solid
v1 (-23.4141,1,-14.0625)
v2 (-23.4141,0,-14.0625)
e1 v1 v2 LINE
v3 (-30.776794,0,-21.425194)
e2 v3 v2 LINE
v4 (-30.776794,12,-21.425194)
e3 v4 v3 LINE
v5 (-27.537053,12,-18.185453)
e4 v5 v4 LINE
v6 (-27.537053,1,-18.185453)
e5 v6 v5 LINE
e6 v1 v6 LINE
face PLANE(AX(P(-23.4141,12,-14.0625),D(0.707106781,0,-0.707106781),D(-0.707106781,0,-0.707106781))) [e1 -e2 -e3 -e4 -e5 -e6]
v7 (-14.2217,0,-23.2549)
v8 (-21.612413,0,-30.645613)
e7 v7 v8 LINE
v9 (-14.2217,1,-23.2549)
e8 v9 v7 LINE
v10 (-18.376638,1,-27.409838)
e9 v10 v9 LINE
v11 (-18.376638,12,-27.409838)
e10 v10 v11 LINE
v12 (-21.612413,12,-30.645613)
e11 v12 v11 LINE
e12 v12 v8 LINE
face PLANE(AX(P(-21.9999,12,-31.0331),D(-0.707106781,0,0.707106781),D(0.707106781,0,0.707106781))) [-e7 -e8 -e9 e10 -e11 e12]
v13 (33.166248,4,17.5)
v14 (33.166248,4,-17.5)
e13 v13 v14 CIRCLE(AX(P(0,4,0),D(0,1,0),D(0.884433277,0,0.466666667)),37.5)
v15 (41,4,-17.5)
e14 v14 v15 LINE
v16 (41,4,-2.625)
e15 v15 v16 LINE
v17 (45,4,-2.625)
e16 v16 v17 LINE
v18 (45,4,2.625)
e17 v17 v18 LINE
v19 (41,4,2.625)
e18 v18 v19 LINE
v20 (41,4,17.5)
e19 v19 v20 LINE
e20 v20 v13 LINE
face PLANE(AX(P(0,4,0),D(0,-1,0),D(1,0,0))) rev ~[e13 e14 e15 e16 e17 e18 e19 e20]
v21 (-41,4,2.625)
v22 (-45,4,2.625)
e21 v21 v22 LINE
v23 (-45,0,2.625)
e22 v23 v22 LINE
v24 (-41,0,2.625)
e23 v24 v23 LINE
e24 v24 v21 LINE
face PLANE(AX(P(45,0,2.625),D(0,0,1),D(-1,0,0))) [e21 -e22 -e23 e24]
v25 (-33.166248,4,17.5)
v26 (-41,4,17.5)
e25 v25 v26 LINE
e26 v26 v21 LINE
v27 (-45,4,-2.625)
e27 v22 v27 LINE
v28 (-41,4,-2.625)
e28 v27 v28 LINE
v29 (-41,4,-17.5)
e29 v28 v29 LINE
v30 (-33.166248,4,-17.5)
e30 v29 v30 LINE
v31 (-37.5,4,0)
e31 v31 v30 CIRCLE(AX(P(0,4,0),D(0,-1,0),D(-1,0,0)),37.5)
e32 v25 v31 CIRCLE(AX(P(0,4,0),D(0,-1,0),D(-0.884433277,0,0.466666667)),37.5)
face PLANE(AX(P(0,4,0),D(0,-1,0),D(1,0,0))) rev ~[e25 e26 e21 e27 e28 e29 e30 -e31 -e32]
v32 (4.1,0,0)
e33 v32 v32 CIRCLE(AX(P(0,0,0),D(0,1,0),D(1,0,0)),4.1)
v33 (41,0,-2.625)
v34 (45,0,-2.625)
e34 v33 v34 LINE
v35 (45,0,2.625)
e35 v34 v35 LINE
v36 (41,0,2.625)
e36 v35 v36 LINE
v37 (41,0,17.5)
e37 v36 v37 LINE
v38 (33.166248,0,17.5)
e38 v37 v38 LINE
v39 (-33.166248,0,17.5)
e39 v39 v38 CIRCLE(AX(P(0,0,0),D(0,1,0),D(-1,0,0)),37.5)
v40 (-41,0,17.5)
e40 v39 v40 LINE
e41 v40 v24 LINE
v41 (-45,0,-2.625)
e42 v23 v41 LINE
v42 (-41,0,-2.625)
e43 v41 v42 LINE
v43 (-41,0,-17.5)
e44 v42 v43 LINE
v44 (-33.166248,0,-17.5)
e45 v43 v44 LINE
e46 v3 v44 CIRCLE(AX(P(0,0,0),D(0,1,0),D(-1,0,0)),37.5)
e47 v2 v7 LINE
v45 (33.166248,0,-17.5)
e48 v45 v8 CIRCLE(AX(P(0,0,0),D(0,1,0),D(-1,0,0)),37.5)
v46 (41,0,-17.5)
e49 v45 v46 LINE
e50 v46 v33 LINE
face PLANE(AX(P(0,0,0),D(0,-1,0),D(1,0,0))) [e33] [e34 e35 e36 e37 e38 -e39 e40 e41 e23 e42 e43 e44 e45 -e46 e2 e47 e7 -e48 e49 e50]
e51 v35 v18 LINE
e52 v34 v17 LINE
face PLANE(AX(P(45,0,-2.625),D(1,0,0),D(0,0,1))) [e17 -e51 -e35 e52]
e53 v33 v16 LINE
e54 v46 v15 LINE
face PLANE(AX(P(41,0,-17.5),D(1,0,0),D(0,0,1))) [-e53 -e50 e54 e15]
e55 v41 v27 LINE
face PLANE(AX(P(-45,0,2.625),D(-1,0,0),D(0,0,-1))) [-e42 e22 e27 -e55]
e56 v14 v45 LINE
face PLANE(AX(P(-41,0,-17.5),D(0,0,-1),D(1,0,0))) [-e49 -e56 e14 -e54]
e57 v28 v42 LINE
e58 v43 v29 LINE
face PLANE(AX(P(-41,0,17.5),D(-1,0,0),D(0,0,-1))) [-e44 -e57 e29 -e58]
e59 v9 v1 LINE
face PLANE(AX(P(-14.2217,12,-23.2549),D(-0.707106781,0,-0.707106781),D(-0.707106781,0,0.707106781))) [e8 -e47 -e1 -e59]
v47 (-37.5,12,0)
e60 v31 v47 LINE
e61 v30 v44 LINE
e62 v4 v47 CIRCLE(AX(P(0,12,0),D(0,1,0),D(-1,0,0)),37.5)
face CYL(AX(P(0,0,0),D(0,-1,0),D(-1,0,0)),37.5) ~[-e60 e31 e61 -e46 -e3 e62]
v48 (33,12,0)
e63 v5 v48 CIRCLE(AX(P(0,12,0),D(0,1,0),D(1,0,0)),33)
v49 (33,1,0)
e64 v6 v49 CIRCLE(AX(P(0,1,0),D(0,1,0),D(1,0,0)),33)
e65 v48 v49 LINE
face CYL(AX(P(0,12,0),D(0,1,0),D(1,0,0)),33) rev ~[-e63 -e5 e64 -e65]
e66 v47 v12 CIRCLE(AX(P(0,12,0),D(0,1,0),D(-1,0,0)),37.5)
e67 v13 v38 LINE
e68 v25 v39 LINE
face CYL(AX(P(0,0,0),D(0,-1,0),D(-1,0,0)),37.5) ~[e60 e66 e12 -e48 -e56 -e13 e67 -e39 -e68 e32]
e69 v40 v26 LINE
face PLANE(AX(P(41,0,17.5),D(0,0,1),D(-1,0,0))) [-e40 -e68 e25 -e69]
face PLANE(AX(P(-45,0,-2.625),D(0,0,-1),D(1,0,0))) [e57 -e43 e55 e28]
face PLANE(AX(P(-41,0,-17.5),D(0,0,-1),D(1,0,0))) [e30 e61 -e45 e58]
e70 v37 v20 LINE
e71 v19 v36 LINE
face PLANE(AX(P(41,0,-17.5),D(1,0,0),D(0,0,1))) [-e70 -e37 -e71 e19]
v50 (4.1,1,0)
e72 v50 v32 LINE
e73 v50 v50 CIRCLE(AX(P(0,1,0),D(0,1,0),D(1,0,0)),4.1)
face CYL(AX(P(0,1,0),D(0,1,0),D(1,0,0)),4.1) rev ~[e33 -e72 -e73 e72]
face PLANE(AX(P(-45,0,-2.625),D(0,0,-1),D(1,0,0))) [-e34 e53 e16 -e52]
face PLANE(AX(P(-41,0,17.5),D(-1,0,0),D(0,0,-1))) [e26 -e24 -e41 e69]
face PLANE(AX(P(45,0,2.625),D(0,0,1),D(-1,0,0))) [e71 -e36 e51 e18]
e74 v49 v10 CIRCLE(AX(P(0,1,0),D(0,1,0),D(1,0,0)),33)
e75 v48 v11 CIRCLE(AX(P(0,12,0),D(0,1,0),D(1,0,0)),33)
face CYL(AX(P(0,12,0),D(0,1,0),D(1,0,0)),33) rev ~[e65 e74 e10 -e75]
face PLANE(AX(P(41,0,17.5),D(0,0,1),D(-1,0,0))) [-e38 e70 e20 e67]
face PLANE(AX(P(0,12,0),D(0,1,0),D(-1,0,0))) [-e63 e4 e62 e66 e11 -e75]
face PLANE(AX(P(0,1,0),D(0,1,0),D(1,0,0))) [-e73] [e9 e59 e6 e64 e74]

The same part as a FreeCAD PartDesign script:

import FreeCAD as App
import Part
import Sketcher

V = App.Vector
Q = App.Units.Quantity

doc = App.newDocument("Part")
params = doc.addObject("Spreadsheet::Sheet", "Params")
for row, (alias, value) in enumerate([
    ("sketch1_diameter", "75 mm"),
    ("pad1_length", "12 mm"),
    ("sketch2_width", "82 mm"),
    ("sketch2_height", "35 mm"),
    ("pad2_length", "4 mm"),
    ("sketch3_width", "90 mm"),
    ("sketch3_height", "5.25 mm"),
    ("pad3_length", "4 mm"),
    ("sketch4_diameter", "66 mm"),
    ("pocket1_length", "11 mm"),
    ("sketch5_diameter", "8.2 mm"),
    ("sketch6_length", "11 mm"),
    ("sketch6_length2", "13 mm"),
], start=1):
    params.set(f"A{row}", alias)
    params.set(f"B{row}", "=" + value)
    params.setAlias(f"B{row}", alias)

body = doc.addObject("PartDesign::Body", "Body")

# Sketch on XZ plane
sketch1 = body.newObject("Sketcher::SketchObject", "Sketch")
sketch1.AttachmentSupport = (doc.getObject("XZ_Plane"), [""])
sketch1.MapMode = "FlatFace"
sketch1.addGeometry(Part.Circle(V(0, 0, 0), V(0, 0, 1), 38), False)
sketch1.addConstraint([
    Sketcher.Constraint("Coincident", 0, 3, -1, 1),
    Sketcher.Constraint("Diameter", 0, 75.0),
])
sketch1.setExpression("Constraints[1]", "Params.sketch1_diameter")
pad1 = body.newObject("PartDesign::Pad", "Pad")
pad1.Profile = sketch1
pad1.setExpression("Length", "Params.pad1_length")
pad1.Reversed = True

# Sketch on XZ plane
sketch2 = body.newObject("Sketcher::SketchObject", "Sketch001")
sketch2.AttachmentSupport = (doc.getObject("XZ_Plane"), [""])
sketch2.MapMode = "FlatFace"
sketch2.addGeometry([
    Part.LineSegment(V(41, -18, 0), V(41, 18, 0)),
    Part.LineSegment(V(41, 18, 0), V(-41, 18, 0)),
    Part.LineSegment(V(-41, 18, 0), V(-41, -18, 0)),
    Part.LineSegment(V(-41, -18, 0), V(41, -18, 0)),
], False)
sketch2.addConstraint([
    Sketcher.Constraint("Coincident", 0, 2, 1, 1),
    Sketcher.Constraint("Coincident", 1, 2, 2, 1),
    Sketcher.Constraint("Coincident", 2, 2, 3, 1),
    Sketcher.Constraint("Coincident", 3, 2, 0, 1),
    Sketcher.Constraint("Vertical", 0),
    Sketcher.Constraint("Horizontal", 1),
    Sketcher.Constraint("Vertical", 2),
    Sketcher.Constraint("Horizontal", 3),
    Sketcher.Constraint("Symmetric", 0, 2, 2, 2, -1, 1),
    Sketcher.Constraint("DistanceX", 1, 2, 1, 1, 82.0),
    Sketcher.Constraint("DistanceY", 0, 1, 0, 2, 35.0),
])
sketch2.setExpression("Constraints[9]", "Params.sketch2_width")
sketch2.setExpression("Constraints[10]", "Params.sketch2_height")
pad2 = body.newObject("PartDesign::Pad", "Pad001")
pad2.Profile = sketch2
pad2.setExpression("Length", "Params.pad2_length")
pad2.Reversed = True

# Sketch on XZ plane
sketch3 = body.newObject("Sketcher::SketchObject", "Sketch002")
sketch3.AttachmentSupport = (doc.getObject("XZ_Plane"), [""])
sketch3.MapMode = "FlatFace"
sketch3.addGeometry([
    Part.LineSegment(V(-45, 3, 0), V(-45, -3, 0)),
    Part.LineSegment(V(-45, -3, 0), V(45, -3, 0)),
    Part.LineSegment(V(45, -3, 0), V(45, 3, 0)),
    Part.LineSegment(V(45, 3, 0), V(-45, 3, 0)),
], False)
sketch3.addConstraint([
    Sketcher.Constraint("Coincident", 0, 2, 1, 1),
    Sketcher.Constraint("Coincident", 1, 2, 2, 1),
    Sketcher.Constraint("Coincident", 2, 2, 3, 1),
    Sketcher.Constraint("Coincident", 3, 2, 0, 1),
    Sketcher.Constraint("Vertical", 0),
    Sketcher.Constraint("Horizontal", 1),
    Sketcher.Constraint("Vertical", 2),
    Sketcher.Constraint("Horizontal", 3),
    Sketcher.Constraint("Symmetric", 0, 2, 2, 2, -1, 1),
    Sketcher.Constraint("DistanceX", 1, 1, 1, 2, 90.0),
    Sketcher.Constraint("DistanceY", 0, 2, 0, 1, 5.25),
])
sketch3.setExpression("Constraints[9]", "Params.sketch3_width")
sketch3.setExpression("Constraints[10]", "Params.sketch3_height")
pad3 = body.newObject("PartDesign::Pad", "Pad002")
pad3.Profile = sketch3
pad3.setExpression("Length", "Params.pad3_length")
pad3.Reversed = True

# Sketch on XZ plane
sketch4 = body.newObject("Sketcher::SketchObject", "Sketch003")
sketch4.AttachmentSupport = (doc.getObject("XZ_Plane"), [""])
sketch4.MapMode = "FlatFace"
sketch4.AttachmentOffset = App.Placement(V(0, 0, -12), App.Rotation())
sketch4.addGeometry(Part.Circle(V(0, 0, 0), V(0, 0, 1), 33), False)
sketch4.addConstraint([
    Sketcher.Constraint("Coincident", 0, 3, -1, 1),
    Sketcher.Constraint("Diameter", 0, 66.0),
])
sketch4.setExpression("Constraints[1]", "Params.sketch4_diameter")
pocket1 = body.newObject("PartDesign::Pocket", "Pocket")
pocket1.Profile = sketch4
pocket1.setExpression("Length", "Params.pocket1_length")
pocket1.Reversed = True

# Sketch on XZ plane
sketch5 = body.newObject("Sketcher::SketchObject", "Sketch004")
sketch5.AttachmentSupport = (doc.getObject("XZ_Plane"), [""])
sketch5.MapMode = "FlatFace"
sketch5.AttachmentOffset = App.Placement(V(0, 0, -1), App.Rotation())
sketch5.addGeometry(Part.Circle(V(0, 0, 0), V(0, 0, 1), 4.1), False)
sketch5.addConstraint([
    Sketcher.Constraint("Coincident", 0, 3, -1, 1),
    Sketcher.Constraint("Diameter", 0, 8.2),
])
sketch5.setExpression("Constraints[1]", "Params.sketch5_diameter")
pocket2 = body.newObject("PartDesign::Pocket", "Pocket001")
pocket2.Profile = sketch5
pocket2.Type = "ThroughAll"
pocket2.Reversed = True

# Sketch on XZ plane
sketch6 = body.newObject("Sketcher::SketchObject", "Sketch005")
sketch6.AttachmentSupport = (doc.getObject("XZ_Plane"), [""])
sketch6.MapMode = "FlatFace"
sketch6.AttachmentOffset = App.Placement(V(0, 0, -12), App.Rotation())
sketch6.addGeometry([
    Part.LineSegment(V(-31, -22, 0), V(-23, -14, 0)),
    Part.LineSegment(V(-23, -14, 0), V(-14, -23, 0)),
    Part.LineSegment(V(-14, -23, 0), V(-22, -31, 0)),
    Part.LineSegment(V(-22, -31, 0), V(-31, -22, 0)),
], False)
sketch6.addConstraint([
    Sketcher.Constraint("Coincident", 0, 2, 1, 1),
    Sketcher.Constraint("Coincident", 1, 2, 2, 1),
    Sketcher.Constraint("Coincident", 2, 2, 3, 1),
    Sketcher.Constraint("Coincident", 3, 2, 0, 1),
    Sketcher.Constraint("Perpendicular", 0, 1),
    Sketcher.Constraint("Perpendicular", 1, 2),
    Sketcher.Constraint("Perpendicular", 2, 3),
    Sketcher.Constraint("Distance", 0, 11.0),
    Sketcher.Constraint("Distance", 1, 13.0),
    Sketcher.Constraint("Angle", 0, Q("45 deg")),
    Sketcher.Constraint("DistanceX", 2, 2, -1, 1, 22.0),
    Sketcher.Constraint("DistanceY", 1, 2, -1, 1, 23.255),
])
sketch6.setExpression("Constraints[7]", "Params.sketch6_length")
sketch6.setExpression("Constraints[8]", "Params.sketch6_length2")
pocket3 = body.newObject("PartDesign::Pocket", "Pocket002")
pocket3.Profile = sketch6
pocket3.Type = "ThroughAll"
pocket3.Reversed = True

doc.recompute()
